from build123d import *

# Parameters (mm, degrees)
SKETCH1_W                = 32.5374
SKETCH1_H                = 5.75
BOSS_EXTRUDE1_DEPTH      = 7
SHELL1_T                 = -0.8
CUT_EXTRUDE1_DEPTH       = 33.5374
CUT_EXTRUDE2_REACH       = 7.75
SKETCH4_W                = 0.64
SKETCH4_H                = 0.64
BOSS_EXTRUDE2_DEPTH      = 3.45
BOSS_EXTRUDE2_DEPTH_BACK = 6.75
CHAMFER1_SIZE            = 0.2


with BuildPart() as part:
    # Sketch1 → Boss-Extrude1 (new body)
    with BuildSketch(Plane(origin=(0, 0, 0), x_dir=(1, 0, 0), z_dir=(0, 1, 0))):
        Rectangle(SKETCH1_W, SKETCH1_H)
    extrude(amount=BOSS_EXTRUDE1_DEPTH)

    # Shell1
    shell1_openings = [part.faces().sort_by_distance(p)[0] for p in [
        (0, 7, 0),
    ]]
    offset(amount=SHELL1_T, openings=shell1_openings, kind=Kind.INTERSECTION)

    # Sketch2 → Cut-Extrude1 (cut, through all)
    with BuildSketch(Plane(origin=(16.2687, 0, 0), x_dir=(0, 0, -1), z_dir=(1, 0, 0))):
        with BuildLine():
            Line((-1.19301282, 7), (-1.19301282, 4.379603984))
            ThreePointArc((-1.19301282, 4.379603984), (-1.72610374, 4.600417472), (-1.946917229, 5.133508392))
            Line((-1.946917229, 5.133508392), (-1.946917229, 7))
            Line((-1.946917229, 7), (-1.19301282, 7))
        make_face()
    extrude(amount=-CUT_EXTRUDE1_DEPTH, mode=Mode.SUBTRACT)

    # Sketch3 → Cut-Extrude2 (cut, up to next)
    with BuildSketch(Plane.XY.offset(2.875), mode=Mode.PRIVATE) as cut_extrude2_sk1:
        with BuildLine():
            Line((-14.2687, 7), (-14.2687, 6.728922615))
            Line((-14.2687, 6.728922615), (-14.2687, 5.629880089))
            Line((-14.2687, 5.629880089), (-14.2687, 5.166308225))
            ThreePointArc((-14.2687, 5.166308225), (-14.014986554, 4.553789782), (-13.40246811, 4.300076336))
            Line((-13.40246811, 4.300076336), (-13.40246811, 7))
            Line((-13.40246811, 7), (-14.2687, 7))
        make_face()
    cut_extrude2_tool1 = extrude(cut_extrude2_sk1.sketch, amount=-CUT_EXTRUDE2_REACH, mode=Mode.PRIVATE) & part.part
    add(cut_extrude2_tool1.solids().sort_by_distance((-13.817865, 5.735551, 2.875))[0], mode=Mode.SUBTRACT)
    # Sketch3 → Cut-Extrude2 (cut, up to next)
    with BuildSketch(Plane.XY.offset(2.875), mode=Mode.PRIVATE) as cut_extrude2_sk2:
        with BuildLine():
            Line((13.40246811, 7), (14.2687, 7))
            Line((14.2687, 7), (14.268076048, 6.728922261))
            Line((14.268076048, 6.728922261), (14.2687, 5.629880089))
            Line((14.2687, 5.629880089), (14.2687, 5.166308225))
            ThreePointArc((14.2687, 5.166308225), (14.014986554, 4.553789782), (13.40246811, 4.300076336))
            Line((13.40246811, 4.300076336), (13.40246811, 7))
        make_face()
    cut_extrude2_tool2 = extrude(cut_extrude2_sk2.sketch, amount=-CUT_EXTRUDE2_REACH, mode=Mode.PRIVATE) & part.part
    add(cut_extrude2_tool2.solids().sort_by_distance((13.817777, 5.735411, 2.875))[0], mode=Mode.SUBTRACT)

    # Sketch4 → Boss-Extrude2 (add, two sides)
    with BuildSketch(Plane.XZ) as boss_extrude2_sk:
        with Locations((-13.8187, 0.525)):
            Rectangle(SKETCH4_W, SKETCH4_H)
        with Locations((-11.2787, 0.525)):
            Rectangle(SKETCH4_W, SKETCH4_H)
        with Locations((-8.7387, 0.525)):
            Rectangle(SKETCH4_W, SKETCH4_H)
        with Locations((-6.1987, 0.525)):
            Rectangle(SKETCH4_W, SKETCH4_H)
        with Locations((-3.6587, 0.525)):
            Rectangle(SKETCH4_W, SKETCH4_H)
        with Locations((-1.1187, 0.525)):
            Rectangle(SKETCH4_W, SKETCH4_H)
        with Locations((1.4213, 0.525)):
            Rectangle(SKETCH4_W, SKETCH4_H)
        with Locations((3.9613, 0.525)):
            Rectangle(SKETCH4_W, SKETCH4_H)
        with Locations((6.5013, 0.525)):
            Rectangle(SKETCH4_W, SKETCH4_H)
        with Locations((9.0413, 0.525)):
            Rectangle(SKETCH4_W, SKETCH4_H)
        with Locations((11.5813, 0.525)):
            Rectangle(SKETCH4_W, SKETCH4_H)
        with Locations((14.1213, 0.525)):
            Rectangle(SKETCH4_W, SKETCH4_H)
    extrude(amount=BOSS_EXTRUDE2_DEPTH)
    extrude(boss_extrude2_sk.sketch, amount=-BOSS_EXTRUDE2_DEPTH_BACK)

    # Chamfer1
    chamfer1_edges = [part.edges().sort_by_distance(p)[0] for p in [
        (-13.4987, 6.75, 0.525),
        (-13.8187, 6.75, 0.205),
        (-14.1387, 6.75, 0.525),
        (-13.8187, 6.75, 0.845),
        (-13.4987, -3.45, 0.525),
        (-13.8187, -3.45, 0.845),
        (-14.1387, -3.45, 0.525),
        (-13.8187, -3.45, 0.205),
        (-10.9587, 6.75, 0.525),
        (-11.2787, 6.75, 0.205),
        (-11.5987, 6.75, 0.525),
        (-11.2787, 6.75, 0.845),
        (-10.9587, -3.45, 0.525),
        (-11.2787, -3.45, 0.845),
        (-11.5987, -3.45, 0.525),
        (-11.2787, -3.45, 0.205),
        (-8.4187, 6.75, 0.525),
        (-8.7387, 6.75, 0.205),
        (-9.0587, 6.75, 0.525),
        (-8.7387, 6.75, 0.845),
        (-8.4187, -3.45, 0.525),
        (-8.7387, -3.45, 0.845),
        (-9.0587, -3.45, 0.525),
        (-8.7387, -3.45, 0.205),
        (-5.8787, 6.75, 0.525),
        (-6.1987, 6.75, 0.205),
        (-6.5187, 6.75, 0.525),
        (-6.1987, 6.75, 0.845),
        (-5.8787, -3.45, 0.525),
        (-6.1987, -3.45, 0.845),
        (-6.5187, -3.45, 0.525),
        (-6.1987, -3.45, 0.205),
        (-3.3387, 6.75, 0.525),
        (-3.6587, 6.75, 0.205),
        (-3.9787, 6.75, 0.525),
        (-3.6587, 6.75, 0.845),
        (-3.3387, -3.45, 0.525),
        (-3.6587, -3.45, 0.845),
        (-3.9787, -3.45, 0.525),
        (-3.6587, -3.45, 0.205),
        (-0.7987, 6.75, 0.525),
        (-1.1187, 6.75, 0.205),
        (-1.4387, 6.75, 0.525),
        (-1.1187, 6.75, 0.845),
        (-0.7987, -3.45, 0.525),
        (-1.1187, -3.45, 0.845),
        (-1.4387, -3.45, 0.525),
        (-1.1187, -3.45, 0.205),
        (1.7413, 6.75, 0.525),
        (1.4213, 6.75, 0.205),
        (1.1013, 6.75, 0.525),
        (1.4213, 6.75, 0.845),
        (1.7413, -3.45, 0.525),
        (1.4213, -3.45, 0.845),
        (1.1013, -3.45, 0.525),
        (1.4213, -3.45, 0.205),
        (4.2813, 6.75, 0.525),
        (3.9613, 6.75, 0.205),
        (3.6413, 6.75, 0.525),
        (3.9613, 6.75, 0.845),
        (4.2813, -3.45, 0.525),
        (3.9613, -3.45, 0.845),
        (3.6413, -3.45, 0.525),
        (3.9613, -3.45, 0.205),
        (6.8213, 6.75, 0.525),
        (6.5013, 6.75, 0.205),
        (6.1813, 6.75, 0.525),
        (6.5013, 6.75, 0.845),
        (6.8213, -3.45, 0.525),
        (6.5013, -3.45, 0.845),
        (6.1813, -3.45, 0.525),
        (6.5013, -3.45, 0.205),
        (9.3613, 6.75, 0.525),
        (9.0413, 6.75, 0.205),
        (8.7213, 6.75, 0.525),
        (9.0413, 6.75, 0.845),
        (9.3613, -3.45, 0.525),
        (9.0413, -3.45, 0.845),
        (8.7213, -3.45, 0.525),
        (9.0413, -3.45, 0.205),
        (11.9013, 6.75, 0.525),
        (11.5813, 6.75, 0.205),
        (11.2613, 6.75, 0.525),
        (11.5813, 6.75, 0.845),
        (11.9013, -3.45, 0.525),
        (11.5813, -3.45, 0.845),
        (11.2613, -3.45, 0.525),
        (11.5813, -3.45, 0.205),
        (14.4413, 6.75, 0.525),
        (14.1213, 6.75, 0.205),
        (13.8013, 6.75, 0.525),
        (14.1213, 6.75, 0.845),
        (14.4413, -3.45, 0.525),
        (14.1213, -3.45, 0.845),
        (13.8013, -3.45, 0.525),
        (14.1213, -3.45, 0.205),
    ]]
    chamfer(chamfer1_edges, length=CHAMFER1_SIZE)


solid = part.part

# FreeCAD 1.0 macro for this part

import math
import FreeCAD as App
import Part
import Sketcher
from FreeCAD import Vector
Q = App.Units.Quantity


def edges_at(feature, points):
    """Names of the edges that pass closest to the given points."""
    edges = feature.Shape.Edges
    near = lambda p: min(range(len(edges)), key=lambda i: edges[i].distToShape(Part.Vertex(*p))[0])
    return sorted({f"Edge{near(p) + 1}" for p in points})


def faces_at(feature, points):
    """Names of the faces that lie closest to the given points."""
    faces = feature.Shape.Faces
    near = lambda p: min(range(len(faces)), key=lambda i: faces[i].distToShape(Part.Vertex(*p))[0])
    return sorted({f"Face{near(p) + 1}" for p in points})

doc = App.newDocument("Part")
body = doc.addObject("PartDesign::Body", "Body")

# Sketch on XZ plane
sketch1 = doc.addObject("Sketcher::SketchObject", "Sketch")
body.addObject(sketch1)
sketch1.AttachmentSupport = (doc.XZ_Plane, [""])
sketch1.MapMode = "FlatFace"
sketch1.addGeometry(Part.LineSegment(Vector(-16, -3, 0), Vector(-16, 3, 0)), False)
sketch1.addGeometry(Part.LineSegment(Vector(-16, 3, 0), Vector(16, 3, 0)), False)
sketch1.addGeometry(Part.LineSegment(Vector(16, 3, 0), Vector(16, -3, 0)), False)
sketch1.addGeometry(Part.LineSegment(Vector(16, -3, 0), Vector(-16, -3, 0)), False)
sketch1.addConstraint(Sketcher.Constraint("Coincident", 0, 2, 1, 1))
sketch1.addConstraint(Sketcher.Constraint("Coincident", 1, 2, 2, 1))
sketch1.addConstraint(Sketcher.Constraint("Coincident", 2, 2, 3, 1))
sketch1.addConstraint(Sketcher.Constraint("Coincident", 3, 2, 0, 1))
sketch1.addConstraint(Sketcher.Constraint("Vertical", 0))
sketch1.addConstraint(Sketcher.Constraint("Horizontal", 1))
sketch1.addConstraint(Sketcher.Constraint("Vertical", 2))
sketch1.addConstraint(Sketcher.Constraint("Horizontal", 3))
sketch1.addConstraint(Sketcher.Constraint("Symmetric", 0, 2, 2, 2, -1, 1))
sketch1.addConstraint(Sketcher.Constraint("DistanceY", 0, 1, 0, 2, Q("5.75 mm")))
sketch1.addConstraint(Sketcher.Constraint("DistanceX", 1, 1, 1, 2, Q("32.5374 mm")))
pad1 = doc.addObject("PartDesign::Pad", "Pad")
body.addObject(pad1)
pad1.Profile = sketch1
pad1.Length = 7
pad1.Reversed = True
doc.recompute()

thickness = doc.addObject("PartDesign::Thickness", "Thickness")
body.addObject(thickness)
thickness.Base = (pad1, faces_at(pad1, [(0, 7, 0)]))
thickness.Value = 0.8
thickness.Reversed = True
thickness.Join = "Intersection"

# Sketch on YZ plane
sketch2 = doc.addObject("Sketcher::SketchObject", "Sketch001")
body.addObject(sketch2)
sketch2.AttachmentSupport = (doc.YZ_Plane, [""])
sketch2.MapMode = "FlatFace"
sketch2.AttachmentOffset = App.Placement(Vector(0, 0, 16.2687), App.Rotation())
sketch2.addGeometry(Part.LineSegment(Vector(4.4, 1.2, 0), Vector(7, 1.2, 0)), False)
sketch2.addGeometry(Part.LineSegment(Vector(7, 1.2, 0), Vector(7, 1.9, 0)), False)
sketch2.addGeometry(Part.LineSegment(Vector(7, 1.9, 0), Vector(5.1, 1.9, 0)), False)
sketch2.addGeometry(Part.ArcOfCircle(Part.Circle(Vector(5.1, 1.2, 0), Vector(0, 0, 1), 0.8), math.radians(90), math.radians(180)), False)
sketch2.addConstraint(Sketcher.Constraint("Coincident", 0, 2, 1, 1))
sketch2.addConstraint(Sketcher.Constraint("Coincident", 1, 2, 2, 1))
sketch2.addConstraint(Sketcher.Constraint("Tangent", 2, 2, 3, 1))
sketch2.addConstraint(Sketcher.Constraint("Coincident", 3, 2, 0, 1))
sketch2.addConstraint(Sketcher.Constraint("Horizontal", 0))
sketch2.addConstraint(Sketcher.Constraint("Vertical", 1))
sketch2.addConstraint(Sketcher.Constraint("Horizontal", 2))
sketch2.addConstraint(Sketcher.Constraint("Horizontal", 3, 3, 0, 2))
sketch2.addConstraint(Sketcher.Constraint("DistanceX", -1, 1, 0, 2, Q("7 mm")))
sketch2.addConstraint(Sketcher.Constraint("Radius", 3, Q("0.753904 mm")))
sketch2.addConstraint(Sketcher.Constraint("DistanceX", 2, 2, 2, 1, Q("1.866492 mm")))
sketch2.addConstraint(Sketcher.Constraint("DistanceY", -1, 1, 3, 3, Q("1.193013 mm")))
pocket1 = doc.addObject("PartDesign::Pocket", "Pocket")
body.addObject(pocket1)
pocket1.Profile = sketch2
pocket1.Type = "ThroughAll"

# Sketch on XY plane
sketch3 = doc.addObject("Sketcher::SketchObject", "Sketch002")
body.addObject(sketch3)
sketch3.AttachmentSupport = (doc.XY_Plane, [""])
sketch3.MapMode = "FlatFace"
sketch3.AttachmentOffset = App.Placement(Vector(0, 0, 2.875), App.Rotation())
sketch3.addGeometry(Part.LineSegment(Vector(-14.3, 7, 0), Vector(-14.3, 5.2, 0)), False)
sketch3.addGeometry(Part.ArcOfCircle(Part.Circle(Vector(-13.4, 5.2, 0), Vector(0, 0, 1), 0.9), math.radians(180), math.radians(270)), False)
sketch3.addGeometry(Part.LineSegment(Vector(-13.4, 4.3, 0), Vector(-13.4, 7, 0)), False)
sketch3.addGeometry(Part.LineSegment(Vector(-13.4, 7, 0), Vector(-14.3, 7, 0)), False)
sketch3.addConstraint(Sketcher.Constraint("Tangent", 0, 2, 1, 1))
sketch3.addConstraint(Sketcher.Constraint("Coincident", 1, 2, 2, 1))
sketch3.addConstraint(Sketcher.Constraint("Coincident", 2, 2, 3, 1))
sketch3.addConstraint(Sketcher.Constraint("Coincident", 3, 2, 0, 1))
sketch3.addConstraint(Sketcher.Constraint("Vertical", 0))
sketch3.addConstraint(Sketcher.Constraint("Vertical", 2))
sketch3.addConstraint(Sketcher.Constraint("Horizontal", 3))
sketch3.addConstraint(Sketcher.Constraint("DistanceY", -1, 1, 2, 2, Q("7 mm")))
sketch3.addConstraint(Sketcher.Constraint("Radius", 1, Q("0.866232 mm")))
sketch3.addConstraint(Sketcher.Constraint("DistanceX", 3, 2, 3, 1, Q("0.866232 mm")))
sketch3.addConstraint(Sketcher.Constraint("DistanceY", 0, 2, 0, 1, Q("1.833692 mm")))
sketch3.addConstraint(Sketcher.Constraint("DistanceX", 0, 2, -1, 1, Q("14.2687 mm")))
pocket2 = doc.addObject("PartDesign::Pocket", "Pocket001")
body.addObject(pocket2)
pocket2.Profile = sketch3
pocket2.Type = "UpToFirst"

# Sketch on XY plane
sketch4 = doc.addObject("Sketcher::SketchObject", "Sketch003")
body.addObject(sketch4)
sketch4.AttachmentSupport = (doc.XY_Plane, [""])
sketch4.MapMode = "FlatFace"
sketch4.AttachmentOffset = App.Placement(Vector(0, 0, 2.875), App.Rotation())
sketch4.addGeometry(Part.LineSegment(Vector(14.27, 7, 0), Vector(13.4, 7, 0)), False)
sketch4.addGeometry(Part.LineSegment(Vector(13.4, 7, 0), Vector(13.4, 4.3, 0)), False)
sketch4.addGeometry(Part.ArcOfCircle(Part.Circle(Vector(13.4, 5.17, 0), Vector(0, 0, 1), 0.87), math.radians(-90), math.radians(0)), False)
sketch4.addGeometry(Part.LineSegment(Vector(14.27, 5.17, 0), Vector(14.27, 5.63, 0)), False)
sketch4.addGeometry(Part.LineSegment(Vector(14.27, 5.63, 0), Vector(14.27, 6.73, 0)), False)
sketch4.addGeometry(Part.LineSegment(Vector(14.27, 6.73, 0), Vector(14.27, 7, 0)), False)
sketch4.addConstraint(Sketcher.Constraint("Coincident", 0, 2, 1, 1))
sketch4.addConstraint(Sketcher.Constraint("Coincident", 1, 2, 2, 1))
sketch4.addConstraint(Sketcher.Constraint("Tangent", 2, 2, 3, 1))
sketch4.addConstraint(Sketcher.Constraint("Coincident", 3, 2, 4, 1))
sketch4.addConstraint(Sketcher.Constraint("Coincident", 4, 2, 5, 1))
sketch4.addConstraint(Sketcher.Constraint("Coincident", 5, 2, 0, 1))
sketch4.addConstraint(Sketcher.Constraint("Horizontal", 0))
sketch4.addConstraint(Sketcher.Constraint("Vertical", 1))
sketch4.addConstraint(Sketcher.Constraint("Vertical", 3))
sketch4.addConstraint(Sketcher.Constraint("Vertical", 2, 3, 0, 2))
sketch4.addConstraint(Sketcher.Constraint("Vertical", 3, 2, 5, 2))
sketch4.addConstraint(Sketcher.Constraint("DistanceY", -1, 1, 0, 2, Q("7 mm")))
sketch4.addConstraint(Sketcher.Constraint("Radius", 2, Q("0.866232 mm")))
sketch4.addConstraint(Sketcher.Constraint("DistanceY", 3, 1, 3, 2, Q("0.463572 mm")))
sketch4.addConstraint(Sketcher.Constraint("DistanceX", -1, 1, 2, 2, Q("14.2687 mm")))
sketch4.addConstraint(Sketcher.Constraint("Distance", 5, Q("0.271078 mm")))
sketch4.addConstraint(Sketcher.Constraint("DistanceY", 1, 2, 1, 1, Q("2.699924 mm")))
sketch4.addConstraint(Sketcher.Constraint("DistanceX", -1, 1, 4, 2, Q("14.268076 mm")))
pocket3 = doc.addObject("PartDesign::Pocket", "Pocket002")
body.addObject(pocket3)
pocket3.Profile = sketch4
pocket3.Type = "UpToFirst"

# Sketch on XZ plane
sketch5 = doc.addObject("Sketcher::SketchObject", "Sketch004")
body.addObject(sketch5)
sketch5.AttachmentSupport = (doc.XZ_Plane, [""])
sketch5.MapMode = "FlatFace"
sketch5.addGeometry(Part.LineSegment(Vector(-14.1, 0.8, 0), Vector(-14.1, 0.2, 0)), False)
sketch5.addGeometry(Part.LineSegment(Vector(-14.1, 0.2, 0), Vector(-13.5, 0.2, 0)), False)
sketch5.addGeometry(Part.LineSegment(Vector(-13.5, 0.2, 0), Vector(-13.5, 0.8, 0)), False)
sketch5.addGeometry(Part.LineSegment(Vector(-13.5, 0.8, 0), Vector(-14.1, 0.8, 0)), False)
sketch5.addGeometry(Part.LineSegment(Vector(-11.6, 0.8, 0), Vector(-11.6, 0.2, 0)), False)
sketch5.addGeometry(Part.LineSegment(Vector(-11.6, 0.2, 0), Vector(-11, 0.2, 0)), False)
sketch5.addGeometry(Part.LineSegment(Vector(-11, 0.2, 0), Vector(-11, 0.8, 0)), False)
sketch5.addGeometry(Part.LineSegment(Vector(-11, 0.8, 0), Vector(-11.6, 0.8, 0)), False)
sketch5.addGeometry(Part.LineSegment(Vector(-9.1, 0.8, 0), Vector(-9.1, 0.2, 0)), False)
sketch5.addGeometry(Part.LineSegment(Vector(-9.1, 0.2, 0), Vector(-8.4, 0.2, 0)), False)
sketch5.addGeometry(Part.LineSegment(Vector(-8.4, 0.2, 0), Vector(-8.4, 0.8, 0)), False)
sketch5.addGeometry(Part.LineSegment(Vector(-8.4, 0.8, 0), Vector(-9.1, 0.8, 0)), False)
sketch5.addGeometry(Part.LineSegment(Vector(-6.5, 0.8, 0), Vector(-6.5, 0.2, 0)), False)
sketch5.addGeometry(Part.LineSegment(Vector(-6.5, 0.2, 0), Vector(-5.9, 0.2, 0)), False)
sketch5.addGeometry(Part.LineSegment(Vector(-5.9, 0.2, 0), Vector(-5.9, 0.8, 0)), False)
sketch5.addGeometry(Part.LineSegment(Vector(-5.9, 0.8, 0), Vector(-6.5, 0.8, 0)), False)
sketch5.addGeometry(Part.LineSegment(Vector(-4, 0.8, 0), Vector(-4, 0.2, 0)), False)
sketch5.addGeometry(Part.LineSegment(Vector(-4, 0.2, 0), Vector(-3.3, 0.2, 0)), False)
sketch5.addGeometry(Part.LineSegment(Vector(-3.3, 0.2, 0), Vector(-3.3, 0.8, 0)), False)
sketch5.addGeometry(Part.LineSegment(Vector(-3.3, 0.8, 0), Vector(-4, 0.8, 0)), False)
sketch5.addGeometry(Part.LineSegment(Vector(-1.4, 0.8, 0), Vector(-1.4, 0.2, 0)), False)
sketch5.addGeometry(Part.LineSegment(Vector(-1.4, 0.2, 0), Vector(-0.8, 0.2, 0)), False)
sketch5.addGeometry(Part.LineSegment(Vector(-0.8, 0.2, 0), Vector(-0.8, 0.8, 0)), False)
sketch5.addGeometry(Part.LineSegment(Vector(-0.8, 0.8, 0), Vector(-1.4, 0.8, 0)), False)
sketch5.addGeometry(Part.LineSegment(Vector(1.1, 0.8, 0), Vector(1.1, 0.2, 0)), False)
sketch5.addGeometry(Part.LineSegment(Vector(1.1, 0.2, 0), Vector(1.7, 0.2, 0)), False)
sketch5.addGeometry(Part.LineSegment(Vector(1.7, 0.2, 0), Vector(1.7, 0.8, 0)), False)
sketch5.addGeometry(Part.LineSegment(Vector(1.7, 0.8, 0), Vector(1.1, 0.8, 0)), False)
sketch5.addGeometry(Part.LineSegment(Vector(3.6, 0.8, 0), Vector(3.6, 0.2, 0)), False)
sketch5.addGeometry(Part.LineSegment(Vector(3.6, 0.2, 0), Vector(4.3, 0.2, 0)), False)
sketch5.addGeometry(Part.LineSegment(Vector(4.3, 0.2, 0), Vector(4.3, 0.8, 0)), False)
sketch5.addGeometry(Part.LineSegment(Vector(4.3, 0.8, 0), Vector(3.6, 0.8, 0)), False)
sketch5.addGeometry(Part.LineSegment(Vector(6.2, 0.8, 0), Vector(6.2, 0.2, 0)), False)
sketch5.addGeometry(Part.LineSegment(Vector(6.2, 0.2, 0), Vector(6.8, 0.2, 0)), False)
sketch5.addGeometry(Part.LineSegment(Vector(6.8, 0.2, 0), Vector(6.8, 0.8, 0)), False)
sketch5.addGeometry(Part.LineSegment(Vector(6.8, 0.8, 0), Vector(6.2, 0.8, 0)), False)
sketch5.addGeometry(Part.LineSegment(Vector(8.7, 0.8, 0), Vector(8.7, 0.2, 0)), False)
sketch5.addGeometry(Part.LineSegment(Vector(8.7, 0.2, 0), Vector(9.4, 0.2, 0)), False)
sketch5.addGeometry(Part.LineSegment(Vector(9.4, 0.2, 0), Vector(9.4, 0.8, 0)), False)
sketch5.addGeometry(Part.LineSegment(Vector(9.4, 0.8, 0), Vector(8.7, 0.8, 0)), False)
sketch5.addGeometry(Part.LineSegment(Vector(11.3, 0.8, 0), Vector(11.3, 0.2, 0)), False)
sketch5.addGeometry(Part.LineSegment(Vector(11.3, 0.2, 0), Vector(11.9, 0.2, 0)), False)
sketch5.addGeometry(Part.LineSegment(Vector(11.9, 0.2, 0), Vector(11.9, 0.8, 0)), False)
sketch5.addGeometry(Part.LineSegment(Vector(11.9, 0.8, 0), Vector(11.3, 0.8, 0)), False)
sketch5.addGeometry(Part.LineSegment(Vector(13.8, 0.8, 0), Vector(13.8, 0.2, 0)), False)
sketch5.addGeometry(Part.LineSegment(Vector(13.8, 0.2, 0), Vector(14.4, 0.2, 0)), False)
sketch5.addGeometry(Part.LineSegment(Vector(14.4, 0.2, 0), Vector(14.4, 0.8, 0)), False)
sketch5.addGeometry(Part.LineSegment(Vector(14.4, 0.8, 0), Vector(13.8, 0.8, 0)), False)
sketch5.addConstraint(Sketcher.Constraint("Coincident", 0, 2, 1, 1))
sketch5.addConstraint(Sketcher.Constraint("Coincident", 1, 2, 2, 1))
sketch5.addConstraint(Sketcher.Constraint("Coincident", 2, 2, 3, 1))
sketch5.addConstraint(Sketcher.Constraint("Coincident", 3, 2, 0, 1))
sketch5.addConstraint(Sketcher.Constraint("Coincident", 4, 2, 5, 1))
sketch5.addConstraint(Sketcher.Constraint("Coincident", 5, 2, 6, 1))
sketch5.addConstraint(Sketcher.Constraint("Coincident", 6, 2, 7, 1))
sketch5.addConstraint(Sketcher.Constraint("Coincident", 7, 2, 4, 1))
sketch5.addConstraint(Sketcher.Constraint("Coincident", 8, 2, 9, 1))
sketch5.addConstraint(Sketcher.Constraint("Coincident", 9, 2, 10, 1))
sketch5.addConstraint(Sketcher.Constraint("Coincident", 10, 2, 11, 1))
sketch5.addConstraint(Sketcher.Constraint("Coincident", 11, 2, 8, 1))
sketch5.addConstraint(Sketcher.Constraint("Coincident", 12, 2, 13, 1))
sketch5.addConstraint(Sketcher.Constraint("Coincident", 13, 2, 14, 1))
sketch5.addConstraint(Sketcher.Constraint("Coincident", 14, 2, 15, 1))
sketch5.addConstraint(Sketcher.Constraint("Coincident", 15, 2, 12, 1))
sketch5.addConstraint(Sketcher.Constraint("Coincident", 16, 2, 17, 1))
sketch5.addConstraint(Sketcher.Constraint("Coincident", 17, 2, 18, 1))
sketch5.addConstraint(Sketcher.Constraint("Coincident", 18, 2, 19, 1))
sketch5.addConstraint(Sketcher.Constraint("Coincident", 19, 2, 16, 1))
sketch5.addConstraint(Sketcher.Constraint("Coincident", 20, 2, 21, 1))
sketch5.addConstraint(Sketcher.Constraint("Coincident", 21, 2, 22, 1))
sketch5.addConstraint(Sketcher.Constraint("Coincident", 22, 2, 23, 1))
sketch5.addConstraint(Sketcher.Constraint("Coincident", 23, 2, 20, 1))
sketch5.addConstraint(Sketcher.Constraint("Coincident", 24, 2, 25, 1))
sketch5.addConstraint(Sketcher.Constraint("Coincident", 25, 2, 26, 1))
sketch5.addConstraint(Sketcher.Constraint("Coincident", 26, 2, 27, 1))
sketch5.addConstraint(Sketcher.Constraint("Coincident", 27, 2, 24, 1))
sketch5.addConstraint(Sketcher.Constraint("Coincident", 28, 2, 29, 1))
sketch5.addConstraint(Sketcher.Constraint("Coincident", 29, 2, 30, 1))
sketch5.addConstraint(Sketcher.Constraint("Coincident", 30, 2, 31, 1))
sketch5.addConstraint(Sketcher.Constraint("Coincident", 31, 2, 28, 1))
sketch5.addConstraint(Sketcher.Constraint("Coincident", 32, 2, 33, 1))
sketch5.addConstraint(Sketcher.Constraint("Coincident", 33, 2, 34, 1))
sketch5.addConstraint(Sketcher.Constraint("Coincident", 34, 2, 35, 1))
sketch5.addConstraint(Sketcher.Constraint("Coincident", 35, 2, 32, 1))
sketch5.addConstraint(Sketcher.Constraint("Coincident", 36, 2, 37, 1))
sketch5.addConstraint(Sketcher.Constraint("Coincident", 37, 2, 38, 1))
sketch5.addConstraint(Sketcher.Constraint("Coincident", 38, 2, 39, 1))
sketch5.addConstraint(Sketcher.Constraint("Coincident", 39, 2, 36, 1))
sketch5.addConstraint(Sketcher.Constraint("Coincident", 40, 2, 41, 1))
sketch5.addConstraint(Sketcher.Constraint("Coincident", 41, 2, 42, 1))
sketch5.addConstraint(Sketcher.Constraint("Coincident", 42, 2, 43, 1))
sketch5.addConstraint(Sketcher.Constraint("Coincident", 43, 2, 40, 1))
sketch5.addConstraint(Sketcher.Constraint("Coincident", 44, 2, 45, 1))
sketch5.addConstraint(Sketcher.Constraint("Coincident", 45, 2, 46, 1))
sketch5.addConstraint(Sketcher.Constraint("Coincident", 46, 2, 47, 1))
sketch5.addConstraint(Sketcher.Constraint("Coincident", 47, 2, 44, 1))
sketch5.addConstraint(Sketcher.Constraint("Vertical", 0))
sketch5.addConstraint(Sketcher.Constraint("Horizontal", 1))
sketch5.addConstraint(Sketcher.Constraint("Vertical", 2))
sketch5.addConstraint(Sketcher.Constraint("Horizontal", 3))
sketch5.addConstraint(Sketcher.Constraint("Vertical", 4))
sketch5.addConstraint(Sketcher.Constraint("Horizontal", 5))
sketch5.addConstraint(Sketcher.Constraint("Vertical", 6))
sketch5.addConstraint(Sketcher.Constraint("Horizontal", 7))
sketch5.addConstraint(Sketcher.Constraint("Vertical", 8))
sketch5.addConstraint(Sketcher.Constraint("Horizontal", 9))
sketch5.addConstraint(Sketcher.Constraint("Vertical", 10))
sketch5.addConstraint(Sketcher.Constraint("Horizontal", 11))
sketch5.addConstraint(Sketcher.Constraint("Vertical", 12))
sketch5.addConstraint(Sketcher.Constraint("Horizontal", 13))
sketch5.addConstraint(Sketcher.Constraint("Vertical", 14))
sketch5.addConstraint(Sketcher.Constraint("Horizontal", 15))
sketch5.addConstraint(Sketcher.Constraint("Vertical", 16))
sketch5.addConstraint(Sketcher.Constraint("Horizontal", 17))
sketch5.addConstraint(Sketcher.Constraint("Vertical", 18))
sketch5.addConstraint(Sketcher.Constraint("Horizontal", 19))
sketch5.addConstraint(Sketcher.Constraint("Vertical", 20))
sketch5.addConstraint(Sketcher.Constraint("Horizontal", 21))
sketch5.addConstraint(Sketcher.Constraint("Vertical", 22))
sketch5.addConstraint(Sketcher.Constraint("Horizontal", 23))
sketch5.addConstraint(Sketcher.Constraint("Vertical", 24))
sketch5.addConstraint(Sketcher.Constraint("Horizontal", 25))
sketch5.addConstraint(Sketcher.Constraint("Vertical", 26))
sketch5.addConstraint(Sketcher.Constraint("Horizontal", 27))
sketch5.addConstraint(Sketcher.Constraint("Vertical", 28))
sketch5.addConstraint(Sketcher.Constraint("Horizontal", 29))
sketch5.addConstraint(Sketcher.Constraint("Vertical", 30))
sketch5.addConstraint(Sketcher.Constraint("Horizontal", 31))
sketch5.addConstraint(Sketcher.Constraint("Vertical", 32))
sketch5.addConstraint(Sketcher.Constraint("Horizontal", 33))
sketch5.addConstraint(Sketcher.Constraint("Vertical", 34))
sketch5.addConstraint(Sketcher.Constraint("Horizontal", 35))
sketch5.addConstraint(Sketcher.Constraint("Vertical", 36))
sketch5.addConstraint(Sketcher.Constraint("Horizontal", 37))
sketch5.addConstraint(Sketcher.Constraint("Vertical", 38))
sketch5.addConstraint(Sketcher.Constraint("Horizontal", 39))
sketch5.addConstraint(Sketcher.Constraint("Vertical", 40))
sketch5.addConstraint(Sketcher.Constraint("Horizontal", 41))
sketch5.addConstraint(Sketcher.Constraint("Vertical", 42))
sketch5.addConstraint(Sketcher.Constraint("Horizontal", 43))
sketch5.addConstraint(Sketcher.Constraint("Vertical", 44))
sketch5.addConstraint(Sketcher.Constraint("Horizontal", 45))
sketch5.addConstraint(Sketcher.Constraint("Vertical", 46))
sketch5.addConstraint(Sketcher.Constraint("Horizontal", 47))
sketch5.addConstraint(Sketcher.Constraint("Horizontal", 1, 2, 4, 2))
sketch5.addConstraint(Sketcher.Constraint("Horizontal", 3, 2, 6, 2))
sketch5.addConstraint(Sketcher.Constraint("Horizontal", 5, 2, 8, 2))
sketch5.addConstraint(Sketcher.Constraint("Horizontal", 7, 2, 10, 2))
sketch5.addConstraint(Sketcher.Constraint("Horizontal", 9, 2, 12, 2))
sketch5.addConstraint(Sketcher.Constraint("Horizontal", 11, 2, 14, 2))
sketch5.addConstraint(Sketcher.Constraint("Horizontal", 13, 2, 16, 2))
sketch5.addConstraint(Sketcher.Constraint("Horizontal", 15, 2, 18, 2))
sketch5.addConstraint(Sketcher.Constraint("Horizontal", 17, 2, 20, 2))
sketch5.addConstraint(Sketcher.Constraint("Horizontal", 19, 2, 22, 2))
sketch5.addConstraint(Sketcher.Constraint("Horizontal", 21, 2, 24, 2))
sketch5.addConstraint(Sketcher.Constraint("Horizontal", 23, 2, 26, 2))
sketch5.addConstraint(Sketcher.Constraint("Horizontal", 25, 2, 28, 2))
sketch5.addConstraint(Sketcher.Constraint("Horizontal", 27, 2, 30, 2))
sketch5.addConstraint(Sketcher.Constraint("Horizontal", 29, 2, 32, 2))
sketch5.addConstraint(Sketcher.Constraint("Horizontal", 31, 2, 34, 2))
sketch5.addConstraint(Sketcher.Constraint("Horizontal", 33, 2, 36, 2))
sketch5.addConstraint(Sketcher.Constraint("Horizontal", 35, 2, 38, 2))
sketch5.addConstraint(Sketcher.Constraint("Horizontal", 37, 2, 40, 2))
sketch5.addConstraint(Sketcher.Constraint("Horizontal", 39, 2, 42, 2))
sketch5.addConstraint(Sketcher.Constraint("Horizontal", 41, 2, 44, 2))
sketch5.addConstraint(Sketcher.Constraint("Horizontal", 43, 2, 46, 2))
sketch5.addConstraint(Sketcher.Constraint("Equal", 3, 5))
sketch5.addConstraint(Sketcher.Constraint("Equal", 7, 9))
sketch5.addConstraint(Sketcher.Constraint("Equal", 11, 13))
sketch5.addConstraint(Sketcher.Constraint("Equal", 15, 17))
sketch5.addConstraint(Sketcher.Constraint("Equal", 19, 21))
sketch5.addConstraint(Sketcher.Constraint("Equal", 23, 25))
sketch5.addConstraint(Sketcher.Constraint("Equal", 27, 29))
sketch5.addConstraint(Sketcher.Constraint("Equal", 31, 33))
sketch5.addConstraint(Sketcher.Constraint("Equal", 35, 37))
sketch5.addConstraint(Sketcher.Constraint("Equal", 39, 41))
sketch5.addConstraint(Sketcher.Constraint("Equal", 43, 45))
sketch5.addConstraint(Sketcher.Constraint("Equal", 47, 0))
sketch5.addConstraint(Sketcher.Constraint("DistanceX", 1, 1, 1, 2, Q("0.64 mm")))
sketch5.addConstraint(Sketcher.Constraint("DistanceX", 1, 2, 4, 2, Q("1.9 mm")))
sketch5.addConstraint(Sketcher.Constraint("DistanceX", 5, 2, 8, 2, Q("1.9 mm")))
sketch5.addConstraint(Sketcher.Constraint("DistanceX", 9, 2, 12, 2, Q("1.9 mm")))
sketch5.addConstraint(Sketcher.Constraint("DistanceX", 13, 2, 16, 2, Q("1.9 mm")))
sketch5.addConstraint(Sketcher.Constraint("DistanceX", 17, 2, 20, 2, Q("1.9 mm")))
sketch5.addConstraint(Sketcher.Constraint("DistanceX", 21, 2, 24, 2, Q("1.9 mm")))
sketch5.addConstraint(Sketcher.Constraint("DistanceX", 25, 2, 28, 2, Q("1.9 mm")))
sketch5.addConstraint(Sketcher.Constraint("DistanceX", 29, 2, 32, 2, Q("1.9 mm")))
sketch5.addConstraint(Sketcher.Constraint("DistanceX", 33, 2, 36, 2, Q("1.9 mm")))
sketch5.addConstraint(Sketcher.Constraint("DistanceX", 37, 2, 40, 2, Q("1.9 mm")))
sketch5.addConstraint(Sketcher.Constraint("DistanceX", 41, 2, 44, 2, Q("1.9 mm")))
sketch5.addConstraint(Sketcher.Constraint("DistanceY", -1, 1, 0, 2, Q("0.205 mm")))
sketch5.addConstraint(Sketcher.Constraint("DistanceX", 0, 2, -1, 1, Q("14.1387 mm")))
pad2 = doc.addObject("PartDesign::Pad", "Pad001")
body.addObject(pad2)
pad2.Profile = sketch5
pad2.Type = "TwoLengths"
pad2.Length = 3.45
pad2.Length2 = 6.75
doc.recompute()

chamfer = doc.addObject("PartDesign::Chamfer", "Chamfer")
body.addObject(chamfer)
chamfer.Base = (pad2, edges_at(pad2, [
    (-13.499, 6.75, 0.525),
    (-13.819, 6.75, 0.205),
    (-14.139, 6.75, 0.525),
    (-13.819, 6.75, 0.845),
    (-13.499, -3.45, 0.525),
    (-13.819, -3.45, 0.845),
    (-14.139, -3.45, 0.525),
    (-13.819, -3.45, 0.205),
    (-10.959, 6.75, 0.525),
    (-11.279, 6.75, 0.205),
    (-11.599, 6.75, 0.525),
    (-11.279, 6.75, 0.845),
    (-10.959, -3.45, 0.525),
    (-11.279, -3.45, 0.845),
    (-11.599, -3.45, 0.525),
    (-11.279, -3.45, 0.205),
    (-8.419, 6.75, 0.525),
    (-8.739, 6.75, 0.205),
    (-9.059, 6.75, 0.525),
    (-8.739, 6.75, 0.845),
    (-8.419, -3.45, 0.525),
    (-8.739, -3.45, 0.845),
    (-9.059, -3.45, 0.525),
    (-8.739, -3.45, 0.205),
    (-5.879, 6.75, 0.525),
    (-6.199, 6.75, 0.205),
    (-6.519, 6.75, 0.525),
    (-6.199, 6.75, 0.845),
    (-5.879, -3.45, 0.525),
    (-6.199, -3.45, 0.845),
    (-6.519, -3.45, 0.525),
    (-6.199, -3.45, 0.205),
    (-3.339, 6.75, 0.525),
    (-3.659, 6.75, 0.205),
    (-3.979, 6.75, 0.525),
    (-3.659, 6.75, 0.845),
    (-3.339, -3.45, 0.525),
    (-3.659, -3.45, 0.845),
    (-3.979, -3.45, 0.525),
    (-3.659, -3.45, 0.205),
    (-0.799, 6.75, 0.525),
    (-1.119, 6.75, 0.205),
    (-1.439, 6.75, 0.525),
    (-1.119, 6.75, 0.845),
    (-0.799, -3.45, 0.525),
    (-1.119, -3.45, 0.845),
    (-1.439, -3.45, 0.525),
    (-1.119, -3.45, 0.205),
    (1.741, 6.75, 0.525),
    (1.421, 6.75, 0.205),
    (1.101, 6.75, 0.525),
    (1.421, 6.75, 0.845),
    (1.741, -3.45, 0.525),
    (1.421, -3.45, 0.845),
    (1.101, -3.45, 0.525),
    (1.421, -3.45, 0.205),
    (4.281, 6.75, 0.525),
    (3.961, 6.75, 0.205),
    (3.641, 6.75, 0.525),
    (3.961, 6.75, 0.845),
    (4.281, -3.45, 0.525),
    (3.961, -3.45, 0.845),
    (3.641, -3.45, 0.525),
    (3.961, -3.45, 0.205),
    (6.821, 6.75, 0.525),
    (6.501, 6.75, 0.205),
    (6.181, 6.75, 0.525),
    (6.501, 6.75, 0.845),
    (6.821, -3.45, 0.525),
    (6.501, -3.45, 0.845),
    (6.181, -3.45, 0.525),
    (6.501, -3.45, 0.205),
    (9.361, 6.75, 0.525),
    (9.041, 6.75, 0.205),
    (8.721, 6.75, 0.525),
    (9.041, 6.75, 0.845),
    (9.361, -3.45, 0.525),
    (9.041, -3.45, 0.845),
    (8.721, -3.45, 0.525),
    (9.041, -3.45, 0.205),
    (11.901, 6.75, 0.525),
    (11.581, 6.75, 0.205),
    (11.261, 6.75, 0.525),
    (11.581, 6.75, 0.845),
    (11.901, -3.45, 0.525),
    (11.581, -3.45, 0.845),
    (11.261, -3.45, 0.525),
    (11.581, -3.45, 0.205),
    (14.441, 6.75, 0.525),
    (14.121, 6.75, 0.205),
    (13.801, 6.75, 0.525),
    (14.121, 6.75, 0.845),
    (14.441, -3.45, 0.525),
    (14.121, -3.45, 0.845),
    (13.801, -3.45, 0.525),
    (14.121, -3.45, 0.205),
]))
chamfer.Size = 0.2

doc.recompute()
